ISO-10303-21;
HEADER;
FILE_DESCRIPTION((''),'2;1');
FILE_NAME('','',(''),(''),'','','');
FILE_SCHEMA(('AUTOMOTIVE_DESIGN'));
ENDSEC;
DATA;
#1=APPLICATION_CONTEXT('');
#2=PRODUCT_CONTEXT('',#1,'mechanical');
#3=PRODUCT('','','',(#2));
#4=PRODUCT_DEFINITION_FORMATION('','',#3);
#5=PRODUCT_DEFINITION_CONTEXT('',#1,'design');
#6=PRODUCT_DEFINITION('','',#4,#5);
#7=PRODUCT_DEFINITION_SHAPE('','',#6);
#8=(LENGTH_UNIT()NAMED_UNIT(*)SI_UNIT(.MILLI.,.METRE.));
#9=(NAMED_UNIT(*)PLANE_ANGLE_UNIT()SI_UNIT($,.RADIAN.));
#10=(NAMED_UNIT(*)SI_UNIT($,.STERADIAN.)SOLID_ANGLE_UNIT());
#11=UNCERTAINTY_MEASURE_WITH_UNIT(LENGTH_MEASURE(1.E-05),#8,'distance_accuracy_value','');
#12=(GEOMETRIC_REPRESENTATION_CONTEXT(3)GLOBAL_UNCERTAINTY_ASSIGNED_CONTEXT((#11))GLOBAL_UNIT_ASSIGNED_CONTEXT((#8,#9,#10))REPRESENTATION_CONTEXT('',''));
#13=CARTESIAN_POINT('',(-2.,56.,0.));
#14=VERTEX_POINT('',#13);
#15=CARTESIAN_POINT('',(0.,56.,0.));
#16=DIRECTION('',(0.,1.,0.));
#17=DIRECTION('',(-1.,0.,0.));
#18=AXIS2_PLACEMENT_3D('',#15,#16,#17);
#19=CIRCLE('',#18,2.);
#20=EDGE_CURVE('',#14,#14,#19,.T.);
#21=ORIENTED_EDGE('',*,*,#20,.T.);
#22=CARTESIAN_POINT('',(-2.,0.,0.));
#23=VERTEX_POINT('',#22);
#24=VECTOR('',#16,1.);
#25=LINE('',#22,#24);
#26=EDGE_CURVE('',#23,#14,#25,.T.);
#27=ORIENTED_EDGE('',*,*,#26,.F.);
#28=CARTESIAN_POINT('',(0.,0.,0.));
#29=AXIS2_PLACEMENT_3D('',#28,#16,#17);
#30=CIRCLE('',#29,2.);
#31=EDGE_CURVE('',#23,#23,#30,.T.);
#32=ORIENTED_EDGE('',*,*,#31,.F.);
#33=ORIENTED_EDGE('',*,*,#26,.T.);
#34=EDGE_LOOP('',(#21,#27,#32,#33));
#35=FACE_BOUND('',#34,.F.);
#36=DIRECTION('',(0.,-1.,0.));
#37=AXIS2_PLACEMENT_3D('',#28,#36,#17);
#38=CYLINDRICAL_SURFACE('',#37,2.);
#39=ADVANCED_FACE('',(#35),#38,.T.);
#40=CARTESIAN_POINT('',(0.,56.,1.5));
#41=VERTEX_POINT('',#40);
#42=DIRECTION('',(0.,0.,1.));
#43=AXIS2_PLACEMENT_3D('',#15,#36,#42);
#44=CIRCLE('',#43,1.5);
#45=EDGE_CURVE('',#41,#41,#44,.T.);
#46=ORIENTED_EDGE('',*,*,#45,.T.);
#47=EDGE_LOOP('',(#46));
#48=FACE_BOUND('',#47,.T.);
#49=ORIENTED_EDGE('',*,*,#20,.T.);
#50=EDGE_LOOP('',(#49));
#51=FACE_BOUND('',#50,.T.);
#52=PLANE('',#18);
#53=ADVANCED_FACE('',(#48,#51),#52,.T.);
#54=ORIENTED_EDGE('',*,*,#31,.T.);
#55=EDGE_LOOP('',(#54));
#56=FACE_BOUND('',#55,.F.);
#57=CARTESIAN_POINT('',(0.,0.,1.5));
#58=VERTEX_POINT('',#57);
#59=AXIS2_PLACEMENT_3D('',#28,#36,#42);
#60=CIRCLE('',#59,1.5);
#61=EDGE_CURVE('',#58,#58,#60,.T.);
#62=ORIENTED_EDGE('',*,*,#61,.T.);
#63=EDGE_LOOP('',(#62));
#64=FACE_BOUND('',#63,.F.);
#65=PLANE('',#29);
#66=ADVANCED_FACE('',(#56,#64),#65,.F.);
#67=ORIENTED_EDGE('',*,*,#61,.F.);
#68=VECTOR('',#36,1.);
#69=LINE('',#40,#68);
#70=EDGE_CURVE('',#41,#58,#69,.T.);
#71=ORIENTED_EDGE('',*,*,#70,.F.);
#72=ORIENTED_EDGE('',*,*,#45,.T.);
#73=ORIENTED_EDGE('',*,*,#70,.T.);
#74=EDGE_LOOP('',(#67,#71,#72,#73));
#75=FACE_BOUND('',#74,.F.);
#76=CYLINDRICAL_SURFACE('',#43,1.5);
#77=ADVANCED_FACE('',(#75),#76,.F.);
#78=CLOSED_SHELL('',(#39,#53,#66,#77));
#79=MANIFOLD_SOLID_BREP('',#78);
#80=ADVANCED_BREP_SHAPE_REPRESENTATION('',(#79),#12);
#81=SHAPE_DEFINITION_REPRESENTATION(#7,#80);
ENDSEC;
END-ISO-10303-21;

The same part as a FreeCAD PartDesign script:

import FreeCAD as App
import Part
import Sketcher

doc = App.newDocument("Part")
params = doc.addObject("Spreadsheet::Sheet", "Params")
for row, (alias, value) in enumerate([
    ("sketch1_diameter", "4 mm"),
    ("pad1_length", "56 mm"),
    ("sketch2_diameter", "3 mm"),
    ("hole_diameter", "3 mm"),
], start=1):
    params.set(f"A{row}", alias)
    params.set(f"B{row}", "=" + value)
    params.setAlias(f"B{row}", alias)

body = doc.addObject("PartDesign::Body", "Body")

sketch1 = body.newObject("Sketcher::SketchObject", "Sketch")
sketch1.AttachmentSupport = (doc.getObject("XZ_Plane"), [""])
sketch1.MapMode = "FlatFace"
sketch1.addGeometry(Part.Circle(App.Vector(0, 0, 0), App.Vector(0, 0, 1), 2), False)
sketch1.addConstraint(Sketcher.Constraint("Coincident", 0, 3, -1, 1))
sketch1.addConstraint(Sketcher.Constraint("Diameter", 0, 4.0))
sketch1.setExpression("Constraints[1]", "Params.sketch1_diameter")
pad1 = body.newObject("PartDesign::Pad", "Pad")
pad1.Profile = sketch1
pad1.setExpression("Length", "Params.pad1_length")
pad1.Reversed = True

sketch2 = body.newObject("Sketcher::SketchObject", "Sketch001")
sketch2.AttachmentSupport = (doc.getObject("XZ_Plane"), [""])
sketch2.MapMode = "FlatFace"
sketch2.AttachmentOffset = App.Placement(App.Vector(0, 0, -56), App.Rotation())
sketch2.addGeometry(Part.Circle(App.Vector(0, 0, 0), App.Vector(0, 0, 1), 1.5), False)
sketch2.addConstraint(Sketcher.Constraint("Coincident", 0, 3, -1, 1))
sketch2.addConstraint(Sketcher.Constraint("Diameter", 0, 3.0))
sketch2.setExpression("Constraints[1]", "Params.sketch2_diameter")
doc.recompute()
hole = body.newObject("PartDesign::Hole", "Hole")
hole.Profile = sketch2
hole.ThreadType = "None"
hole.setExpression("Diameter", "Params.hole_diameter")
hole.DepthType = "ThroughAll"
hole.Reversed = True

doc.recompute()
